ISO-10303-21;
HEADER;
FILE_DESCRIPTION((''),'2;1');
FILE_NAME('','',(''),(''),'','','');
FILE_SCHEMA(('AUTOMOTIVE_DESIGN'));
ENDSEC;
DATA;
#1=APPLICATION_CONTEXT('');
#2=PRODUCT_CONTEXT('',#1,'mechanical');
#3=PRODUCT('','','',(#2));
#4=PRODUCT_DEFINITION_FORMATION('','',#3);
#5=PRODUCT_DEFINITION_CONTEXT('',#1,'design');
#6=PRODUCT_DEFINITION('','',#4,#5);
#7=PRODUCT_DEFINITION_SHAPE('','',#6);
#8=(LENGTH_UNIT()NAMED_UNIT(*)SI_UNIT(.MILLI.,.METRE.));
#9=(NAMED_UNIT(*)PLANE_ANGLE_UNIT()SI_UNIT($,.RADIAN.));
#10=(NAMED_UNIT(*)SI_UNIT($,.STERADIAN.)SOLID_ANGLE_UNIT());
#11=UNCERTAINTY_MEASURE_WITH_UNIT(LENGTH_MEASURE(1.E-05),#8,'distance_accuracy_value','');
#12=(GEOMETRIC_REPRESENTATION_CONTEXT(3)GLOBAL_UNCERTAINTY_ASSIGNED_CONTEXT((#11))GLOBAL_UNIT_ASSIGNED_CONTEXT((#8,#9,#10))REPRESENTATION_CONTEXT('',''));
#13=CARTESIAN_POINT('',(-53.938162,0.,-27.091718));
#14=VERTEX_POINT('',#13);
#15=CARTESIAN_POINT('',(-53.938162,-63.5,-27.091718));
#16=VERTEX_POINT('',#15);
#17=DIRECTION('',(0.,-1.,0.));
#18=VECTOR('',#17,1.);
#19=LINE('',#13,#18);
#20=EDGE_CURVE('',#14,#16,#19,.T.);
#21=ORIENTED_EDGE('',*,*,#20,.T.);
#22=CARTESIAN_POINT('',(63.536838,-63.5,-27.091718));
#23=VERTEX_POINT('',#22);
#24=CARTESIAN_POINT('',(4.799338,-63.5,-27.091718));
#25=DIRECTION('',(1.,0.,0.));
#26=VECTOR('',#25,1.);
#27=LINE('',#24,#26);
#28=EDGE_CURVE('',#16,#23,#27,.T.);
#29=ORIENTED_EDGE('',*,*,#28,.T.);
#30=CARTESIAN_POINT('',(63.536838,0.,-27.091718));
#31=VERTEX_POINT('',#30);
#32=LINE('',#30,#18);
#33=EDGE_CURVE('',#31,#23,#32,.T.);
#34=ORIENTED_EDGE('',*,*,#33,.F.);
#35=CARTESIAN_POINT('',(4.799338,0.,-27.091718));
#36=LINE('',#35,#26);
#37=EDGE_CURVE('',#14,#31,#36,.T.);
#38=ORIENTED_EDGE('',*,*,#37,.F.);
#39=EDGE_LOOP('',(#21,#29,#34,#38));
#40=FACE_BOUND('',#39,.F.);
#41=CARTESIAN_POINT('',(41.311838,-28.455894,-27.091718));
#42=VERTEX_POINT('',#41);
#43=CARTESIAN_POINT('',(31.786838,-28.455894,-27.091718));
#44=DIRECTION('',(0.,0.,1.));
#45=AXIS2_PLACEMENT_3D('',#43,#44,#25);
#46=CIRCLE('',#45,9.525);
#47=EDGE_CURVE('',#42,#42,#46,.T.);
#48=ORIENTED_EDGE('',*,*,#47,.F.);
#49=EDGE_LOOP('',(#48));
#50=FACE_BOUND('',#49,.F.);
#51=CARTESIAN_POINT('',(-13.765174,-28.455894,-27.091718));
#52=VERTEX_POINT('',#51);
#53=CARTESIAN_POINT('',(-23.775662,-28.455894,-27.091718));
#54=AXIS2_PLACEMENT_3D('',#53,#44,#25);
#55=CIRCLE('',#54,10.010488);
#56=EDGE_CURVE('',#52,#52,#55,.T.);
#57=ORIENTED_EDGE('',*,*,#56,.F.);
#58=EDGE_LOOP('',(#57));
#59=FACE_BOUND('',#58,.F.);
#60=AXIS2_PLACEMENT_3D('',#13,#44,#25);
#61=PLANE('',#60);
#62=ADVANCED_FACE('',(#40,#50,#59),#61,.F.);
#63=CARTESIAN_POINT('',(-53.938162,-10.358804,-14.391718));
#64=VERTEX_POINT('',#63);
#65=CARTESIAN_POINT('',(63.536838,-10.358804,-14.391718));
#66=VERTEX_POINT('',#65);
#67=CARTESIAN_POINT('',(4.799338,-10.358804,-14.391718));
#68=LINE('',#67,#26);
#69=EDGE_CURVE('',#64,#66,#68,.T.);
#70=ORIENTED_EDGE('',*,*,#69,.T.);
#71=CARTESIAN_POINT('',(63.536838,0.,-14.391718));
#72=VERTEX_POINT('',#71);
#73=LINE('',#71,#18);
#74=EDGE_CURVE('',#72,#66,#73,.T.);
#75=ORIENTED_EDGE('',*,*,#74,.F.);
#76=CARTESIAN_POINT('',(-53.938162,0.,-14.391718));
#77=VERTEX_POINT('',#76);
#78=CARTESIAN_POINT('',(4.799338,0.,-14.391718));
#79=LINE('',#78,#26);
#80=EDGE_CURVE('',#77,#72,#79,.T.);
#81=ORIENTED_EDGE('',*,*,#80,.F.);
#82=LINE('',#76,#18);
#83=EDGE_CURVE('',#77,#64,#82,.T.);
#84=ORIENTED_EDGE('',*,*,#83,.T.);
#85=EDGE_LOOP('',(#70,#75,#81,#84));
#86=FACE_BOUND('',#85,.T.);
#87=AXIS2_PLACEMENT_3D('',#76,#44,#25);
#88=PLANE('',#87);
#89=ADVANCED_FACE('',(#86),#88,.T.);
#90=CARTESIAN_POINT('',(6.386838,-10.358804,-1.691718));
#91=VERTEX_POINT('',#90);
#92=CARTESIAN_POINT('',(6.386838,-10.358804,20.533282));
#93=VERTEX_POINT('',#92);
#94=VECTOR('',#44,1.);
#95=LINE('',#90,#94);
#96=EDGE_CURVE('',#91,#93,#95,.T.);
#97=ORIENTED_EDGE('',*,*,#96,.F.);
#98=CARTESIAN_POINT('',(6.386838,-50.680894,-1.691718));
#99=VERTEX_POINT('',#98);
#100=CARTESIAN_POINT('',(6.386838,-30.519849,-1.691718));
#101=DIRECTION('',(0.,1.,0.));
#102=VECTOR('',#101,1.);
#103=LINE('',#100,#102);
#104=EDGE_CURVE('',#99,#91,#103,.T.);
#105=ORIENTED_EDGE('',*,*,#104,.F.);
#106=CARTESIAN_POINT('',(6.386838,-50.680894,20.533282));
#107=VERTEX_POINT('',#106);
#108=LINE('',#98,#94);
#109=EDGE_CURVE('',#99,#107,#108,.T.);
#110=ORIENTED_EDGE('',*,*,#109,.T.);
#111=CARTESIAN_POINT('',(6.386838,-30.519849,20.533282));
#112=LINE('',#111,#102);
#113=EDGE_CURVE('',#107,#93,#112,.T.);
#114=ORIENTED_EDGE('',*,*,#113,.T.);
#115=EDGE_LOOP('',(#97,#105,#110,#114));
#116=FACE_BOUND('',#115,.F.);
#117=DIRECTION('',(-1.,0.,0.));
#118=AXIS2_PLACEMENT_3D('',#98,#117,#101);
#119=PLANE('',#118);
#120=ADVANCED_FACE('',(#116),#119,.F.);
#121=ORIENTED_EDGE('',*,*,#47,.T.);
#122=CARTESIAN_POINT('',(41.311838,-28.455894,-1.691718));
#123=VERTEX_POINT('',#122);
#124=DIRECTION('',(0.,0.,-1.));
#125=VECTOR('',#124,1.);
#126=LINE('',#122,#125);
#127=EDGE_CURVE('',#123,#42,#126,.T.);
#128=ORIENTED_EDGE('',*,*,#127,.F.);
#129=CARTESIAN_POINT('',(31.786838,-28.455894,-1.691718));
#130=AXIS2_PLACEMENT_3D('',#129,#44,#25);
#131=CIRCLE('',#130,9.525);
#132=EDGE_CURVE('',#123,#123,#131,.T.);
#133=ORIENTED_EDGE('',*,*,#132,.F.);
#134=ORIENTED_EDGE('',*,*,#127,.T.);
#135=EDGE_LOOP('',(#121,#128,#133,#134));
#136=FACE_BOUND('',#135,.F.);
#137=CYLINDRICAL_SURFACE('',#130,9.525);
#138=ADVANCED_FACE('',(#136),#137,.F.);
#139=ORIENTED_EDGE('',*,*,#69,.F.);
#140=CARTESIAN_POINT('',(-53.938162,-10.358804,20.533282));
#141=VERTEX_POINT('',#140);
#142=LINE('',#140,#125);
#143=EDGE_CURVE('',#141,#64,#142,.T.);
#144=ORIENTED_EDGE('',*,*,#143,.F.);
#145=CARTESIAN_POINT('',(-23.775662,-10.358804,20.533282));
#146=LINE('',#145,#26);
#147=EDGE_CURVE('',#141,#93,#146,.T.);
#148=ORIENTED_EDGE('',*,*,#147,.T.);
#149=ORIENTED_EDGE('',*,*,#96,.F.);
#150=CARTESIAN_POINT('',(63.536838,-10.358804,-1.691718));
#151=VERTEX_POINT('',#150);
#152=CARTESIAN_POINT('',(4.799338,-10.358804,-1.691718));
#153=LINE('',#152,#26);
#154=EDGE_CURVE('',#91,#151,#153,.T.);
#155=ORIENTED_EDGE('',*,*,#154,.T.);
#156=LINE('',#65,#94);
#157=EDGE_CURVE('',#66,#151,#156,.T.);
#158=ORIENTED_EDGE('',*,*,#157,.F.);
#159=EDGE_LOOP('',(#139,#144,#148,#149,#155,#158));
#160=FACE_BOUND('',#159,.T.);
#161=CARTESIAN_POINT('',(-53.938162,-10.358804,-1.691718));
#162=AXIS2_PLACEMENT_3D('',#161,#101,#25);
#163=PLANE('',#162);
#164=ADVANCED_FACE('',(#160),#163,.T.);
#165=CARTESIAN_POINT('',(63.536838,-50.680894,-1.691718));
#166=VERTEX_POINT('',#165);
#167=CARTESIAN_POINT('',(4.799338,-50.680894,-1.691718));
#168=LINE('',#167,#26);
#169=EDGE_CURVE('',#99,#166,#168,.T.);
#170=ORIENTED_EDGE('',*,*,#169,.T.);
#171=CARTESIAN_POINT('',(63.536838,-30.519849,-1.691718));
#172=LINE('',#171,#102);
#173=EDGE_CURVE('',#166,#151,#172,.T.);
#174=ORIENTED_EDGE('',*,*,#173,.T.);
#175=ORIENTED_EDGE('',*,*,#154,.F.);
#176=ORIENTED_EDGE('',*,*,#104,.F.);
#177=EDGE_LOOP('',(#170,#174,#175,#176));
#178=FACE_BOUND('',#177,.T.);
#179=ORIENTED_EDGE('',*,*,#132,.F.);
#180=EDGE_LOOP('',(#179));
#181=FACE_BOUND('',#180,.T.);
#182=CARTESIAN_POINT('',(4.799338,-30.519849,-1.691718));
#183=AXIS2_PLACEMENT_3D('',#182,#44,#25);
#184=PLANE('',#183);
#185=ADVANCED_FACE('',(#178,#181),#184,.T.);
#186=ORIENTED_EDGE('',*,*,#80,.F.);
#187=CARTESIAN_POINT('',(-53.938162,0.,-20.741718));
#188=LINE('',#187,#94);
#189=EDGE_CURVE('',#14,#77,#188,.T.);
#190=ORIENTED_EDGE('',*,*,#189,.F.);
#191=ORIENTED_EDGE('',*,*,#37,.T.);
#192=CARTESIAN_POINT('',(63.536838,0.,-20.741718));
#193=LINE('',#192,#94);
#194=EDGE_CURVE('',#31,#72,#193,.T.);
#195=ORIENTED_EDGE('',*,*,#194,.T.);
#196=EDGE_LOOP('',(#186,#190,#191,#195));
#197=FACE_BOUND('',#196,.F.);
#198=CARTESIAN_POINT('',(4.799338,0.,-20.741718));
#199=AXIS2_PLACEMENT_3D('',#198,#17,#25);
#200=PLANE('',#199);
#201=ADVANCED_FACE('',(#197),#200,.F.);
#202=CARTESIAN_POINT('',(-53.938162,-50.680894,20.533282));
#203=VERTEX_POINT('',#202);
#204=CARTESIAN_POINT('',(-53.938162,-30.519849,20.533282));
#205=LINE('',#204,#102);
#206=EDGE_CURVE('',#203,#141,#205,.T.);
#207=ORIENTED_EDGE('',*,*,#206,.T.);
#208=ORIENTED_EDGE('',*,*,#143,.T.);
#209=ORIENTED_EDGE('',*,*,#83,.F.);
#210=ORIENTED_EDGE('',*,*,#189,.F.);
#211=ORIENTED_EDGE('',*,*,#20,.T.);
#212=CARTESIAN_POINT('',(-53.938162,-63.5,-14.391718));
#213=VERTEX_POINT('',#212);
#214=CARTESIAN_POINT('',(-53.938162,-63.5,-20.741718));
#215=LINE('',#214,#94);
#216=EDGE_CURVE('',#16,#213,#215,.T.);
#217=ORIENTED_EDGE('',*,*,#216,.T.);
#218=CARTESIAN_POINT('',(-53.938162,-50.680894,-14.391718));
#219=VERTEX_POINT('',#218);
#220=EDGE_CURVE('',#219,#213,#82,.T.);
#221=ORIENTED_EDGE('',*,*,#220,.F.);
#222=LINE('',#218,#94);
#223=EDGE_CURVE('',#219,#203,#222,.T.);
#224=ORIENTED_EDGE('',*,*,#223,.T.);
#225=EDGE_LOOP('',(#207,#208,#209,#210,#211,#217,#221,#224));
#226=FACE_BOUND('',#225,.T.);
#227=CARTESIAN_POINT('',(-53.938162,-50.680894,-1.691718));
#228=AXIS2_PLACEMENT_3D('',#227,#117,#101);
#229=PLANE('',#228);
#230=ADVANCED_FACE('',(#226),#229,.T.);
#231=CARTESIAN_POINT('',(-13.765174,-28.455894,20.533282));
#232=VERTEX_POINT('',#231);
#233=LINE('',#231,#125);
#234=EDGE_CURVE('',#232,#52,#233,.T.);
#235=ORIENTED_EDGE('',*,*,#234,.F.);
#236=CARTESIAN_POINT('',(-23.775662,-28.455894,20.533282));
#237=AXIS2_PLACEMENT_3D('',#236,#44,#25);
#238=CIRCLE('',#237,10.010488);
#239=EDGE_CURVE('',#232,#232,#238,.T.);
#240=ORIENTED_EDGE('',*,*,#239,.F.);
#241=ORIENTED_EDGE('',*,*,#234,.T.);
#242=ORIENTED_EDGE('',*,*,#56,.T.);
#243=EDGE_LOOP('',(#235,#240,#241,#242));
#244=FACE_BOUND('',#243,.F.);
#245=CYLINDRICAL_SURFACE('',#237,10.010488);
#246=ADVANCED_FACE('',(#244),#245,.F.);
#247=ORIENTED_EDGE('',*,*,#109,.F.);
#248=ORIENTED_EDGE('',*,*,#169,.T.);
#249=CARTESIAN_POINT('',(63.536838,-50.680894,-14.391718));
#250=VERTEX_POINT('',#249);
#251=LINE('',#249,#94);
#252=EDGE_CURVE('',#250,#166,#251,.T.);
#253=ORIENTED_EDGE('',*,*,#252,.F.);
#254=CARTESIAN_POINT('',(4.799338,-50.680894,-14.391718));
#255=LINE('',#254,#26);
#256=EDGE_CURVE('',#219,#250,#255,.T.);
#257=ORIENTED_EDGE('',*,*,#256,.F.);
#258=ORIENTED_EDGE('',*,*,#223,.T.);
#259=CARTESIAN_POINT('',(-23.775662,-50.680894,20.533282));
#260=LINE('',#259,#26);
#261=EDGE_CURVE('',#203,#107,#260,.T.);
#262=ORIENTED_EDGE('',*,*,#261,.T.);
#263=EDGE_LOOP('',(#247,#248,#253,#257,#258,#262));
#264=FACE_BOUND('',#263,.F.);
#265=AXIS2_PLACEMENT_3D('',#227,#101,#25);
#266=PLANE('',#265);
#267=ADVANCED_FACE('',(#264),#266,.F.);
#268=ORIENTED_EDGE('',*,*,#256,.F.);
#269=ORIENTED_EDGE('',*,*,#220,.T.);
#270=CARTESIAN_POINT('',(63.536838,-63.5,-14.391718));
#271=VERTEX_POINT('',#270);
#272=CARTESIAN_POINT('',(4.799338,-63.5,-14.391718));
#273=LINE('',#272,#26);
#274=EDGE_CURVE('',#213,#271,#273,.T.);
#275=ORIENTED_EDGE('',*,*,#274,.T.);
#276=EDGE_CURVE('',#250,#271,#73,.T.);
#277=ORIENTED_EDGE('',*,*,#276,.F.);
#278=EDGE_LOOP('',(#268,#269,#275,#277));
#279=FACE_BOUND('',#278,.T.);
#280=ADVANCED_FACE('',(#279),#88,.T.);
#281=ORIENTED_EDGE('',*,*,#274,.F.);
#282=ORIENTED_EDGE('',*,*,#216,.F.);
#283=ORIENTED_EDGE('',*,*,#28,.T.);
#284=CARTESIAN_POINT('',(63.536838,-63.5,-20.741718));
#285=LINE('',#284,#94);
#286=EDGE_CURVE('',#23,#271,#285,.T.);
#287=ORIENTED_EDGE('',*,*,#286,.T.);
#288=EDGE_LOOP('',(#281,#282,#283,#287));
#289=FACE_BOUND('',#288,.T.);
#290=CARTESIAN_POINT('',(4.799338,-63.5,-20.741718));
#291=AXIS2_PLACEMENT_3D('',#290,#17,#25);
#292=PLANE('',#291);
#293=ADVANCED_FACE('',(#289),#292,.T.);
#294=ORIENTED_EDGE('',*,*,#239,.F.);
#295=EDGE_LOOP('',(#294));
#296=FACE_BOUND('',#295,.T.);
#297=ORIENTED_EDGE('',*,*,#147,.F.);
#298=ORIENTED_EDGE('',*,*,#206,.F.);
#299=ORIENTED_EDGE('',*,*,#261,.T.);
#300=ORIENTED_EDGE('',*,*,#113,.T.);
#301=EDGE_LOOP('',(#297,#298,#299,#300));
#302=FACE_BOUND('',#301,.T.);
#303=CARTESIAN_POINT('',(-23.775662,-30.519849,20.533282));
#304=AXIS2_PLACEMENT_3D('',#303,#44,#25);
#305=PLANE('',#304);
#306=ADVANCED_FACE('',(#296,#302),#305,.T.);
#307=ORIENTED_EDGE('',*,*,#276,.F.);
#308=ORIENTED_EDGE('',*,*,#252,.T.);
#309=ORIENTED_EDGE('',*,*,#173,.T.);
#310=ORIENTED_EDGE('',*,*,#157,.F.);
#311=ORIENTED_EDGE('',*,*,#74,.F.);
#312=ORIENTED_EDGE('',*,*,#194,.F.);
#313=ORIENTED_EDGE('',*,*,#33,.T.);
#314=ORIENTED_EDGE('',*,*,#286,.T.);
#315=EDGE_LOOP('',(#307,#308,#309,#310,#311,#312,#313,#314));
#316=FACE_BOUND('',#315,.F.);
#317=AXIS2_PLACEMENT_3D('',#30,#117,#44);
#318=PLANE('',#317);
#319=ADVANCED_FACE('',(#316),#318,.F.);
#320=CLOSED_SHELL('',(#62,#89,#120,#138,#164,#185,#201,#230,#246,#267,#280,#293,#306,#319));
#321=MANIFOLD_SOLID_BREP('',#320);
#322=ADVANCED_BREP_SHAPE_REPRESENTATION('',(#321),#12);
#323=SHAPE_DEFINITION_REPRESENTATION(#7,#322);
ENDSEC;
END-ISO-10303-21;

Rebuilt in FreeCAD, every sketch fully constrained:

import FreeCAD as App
import Part
import Sketcher
from FreeCAD import Vector
Q = App.Units.Quantity


def add_polygon(sketch, points):
    """Adds a closed chain of lines whose ends are joined by coincident constraints."""
    first, n = sketch.GeometryCount, len(points)
    for a, b in zip(points, points[1:] + points[:1]):
        sketch.addGeometry(Part.LineSegment(App.Vector(*a, 0), App.Vector(*b, 0)), False)
    for i in range(n):
        sketch.addConstraint(Sketcher.Constraint("Coincident", first + i, 2, first + (i + 1) % n, 1))

doc = App.newDocument("Part")
body = doc.addObject("PartDesign::Body", "Body")

# Sketch on XZ plane
sketch1 = doc.addObject("Sketcher::SketchObject", "Sketch")
body.addObject(sketch1)
sketch1.AttachmentSupport = (doc.XZ_Plane, [""])
sketch1.MapMode = "FlatFace"
add_polygon(sketch1, [(-54, -14), (-54, -27), (64, -27), (64, -14)])  # lines 0-3
sketch1.addConstraint(Sketcher.Constraint("Vertical", 0))
sketch1.addConstraint(Sketcher.Constraint("Horizontal", 1))
sketch1.addConstraint(Sketcher.Constraint("Vertical", 2))
sketch1.addConstraint(Sketcher.Constraint("Horizontal", 3))
sketch1.addConstraint(Sketcher.Constraint("DistanceY", 0, 2, 0, 1, Q("0.5 in")))
sketch1.addConstraint(Sketcher.Constraint("DistanceX", 1, 1, 1, 2, Q("4.625 in")))
sketch1.addConstraint(Sketcher.Constraint("DistanceX", 0, 2, -1, 1, 53.938162))
sketch1.addConstraint(Sketcher.Constraint("DistanceY", 0, 2, -1, 1, 27.091718))
pad1 = doc.addObject("PartDesign::Pad", "Pad")
body.addObject(pad1)
pad1.Profile = sketch1
pad1.Length = Q("2.5 in")

# Sketch on XY plane
sketch2 = doc.addObject("Sketcher::SketchObject", "Sketch001")
body.addObject(sketch2)
sketch2.AttachmentSupport = (doc.XY_Plane, [""])
sketch2.MapMode = "FlatFace"
sketch2.AttachmentOffset = App.Placement(Vector(0, 0, -14.391718), App.Rotation())
add_polygon(sketch2, [(-54, -10), (-54, -51), (64, -51), (64, -10)])  # lines 0-3
sketch2.addConstraint(Sketcher.Constraint("Vertical", 0))
sketch2.addConstraint(Sketcher.Constraint("Horizontal", 1))
sketch2.addConstraint(Sketcher.Constraint("Vertical", 2))
sketch2.addConstraint(Sketcher.Constraint("Horizontal", 3))
sketch2.addConstraint(Sketcher.Constraint("DistanceX", 1, 1, 1, 2, Q("4.625 in")))
sketch2.addConstraint(Sketcher.Constraint("DistanceY", 0, 2, 0, 1, 40.322089))
sketch2.addConstraint(Sketcher.Constraint("DistanceX", 0, 2, -1, 1, 53.938162))
sketch2.addConstraint(Sketcher.Constraint("DistanceY", 0, 2, -1, 1, 50.680894))
pad2 = doc.addObject("PartDesign::Pad", "Pad001")
body.addObject(pad2)
pad2.Profile = sketch2
pad2.Length = Q("0.5 in")

# Sketch on XY plane
sketch3 = doc.addObject("Sketcher::SketchObject", "Sketch002")
body.addObject(sketch3)
sketch3.AttachmentSupport = (doc.XY_Plane, [""])
sketch3.MapMode = "FlatFace"
sketch3.AttachmentOffset = App.Placement(Vector(0, 0, -1.691718), App.Rotation())
add_polygon(sketch3, [(-54, -10), (-54, -51), (6, -51), (6, -10)])  # lines 0-3
sketch3.addConstraint(Sketcher.Constraint("Vertical", 0))
sketch3.addConstraint(Sketcher.Constraint("Horizontal", 1))
sketch3.addConstraint(Sketcher.Constraint("Vertical", 2))
sketch3.addConstraint(Sketcher.Constraint("Horizontal", 3))
sketch3.addConstraint(Sketcher.Constraint("DistanceX", 1, 1, 1, 2, Q("2.375 in")))
sketch3.addConstraint(Sketcher.Constraint("DistanceY", 0, 2, 0, 1, 40.322089))
sketch3.addConstraint(Sketcher.Constraint("DistanceX", 0, 2, -1, 1, 53.938162))
sketch3.addConstraint(Sketcher.Constraint("DistanceY", 0, 2, -1, 1, 50.680894))
pad3 = doc.addObject("PartDesign::Pad", "Pad002")
body.addObject(pad3)
pad3.Profile = sketch3
pad3.Length = Q("0.875 in")

# Sketch on XY plane
sketch4 = doc.addObject("Sketcher::SketchObject", "Sketch003")
body.addObject(sketch4)
sketch4.AttachmentSupport = (doc.XY_Plane, [""])
sketch4.MapMode = "FlatFace"
sketch4.AttachmentOffset = App.Placement(Vector(0, 0, -1.691718), App.Rotation())
sketch4.addGeometry(Part.Circle(Vector(32, -28, 0), Vector(0, 0, 1), 10), False)
sketch4.addConstraint(Sketcher.Constraint("Diameter", 0, Q("0.75 in")))
sketch4.addConstraint(Sketcher.Constraint("DistanceX", -1, 1, 0, 3, 31.786838))
sketch4.addConstraint(Sketcher.Constraint("DistanceY", 0, 3, -1, 1, 28.455894))
pocket1 = doc.addObject("PartDesign::Pocket", "Pocket")
body.addObject(pocket1)
pocket1.Profile = sketch4
pocket1.Length = Q("1 in")

# Sketch on XY plane
sketch5 = doc.addObject("Sketcher::SketchObject", "Sketch004")
body.addObject(sketch5)
sketch5.AttachmentSupport = (doc.XY_Plane, [""])
sketch5.MapMode = "FlatFace"
sketch5.AttachmentOffset = App.Placement(Vector(0, 0, 20.533282), App.Rotation())
sketch5.addGeometry(Part.Circle(Vector(-24, -28, 0), Vector(0, 0, 1), 10), False)
sketch5.addConstraint(Sketcher.Constraint("Diameter", 0, 20.020976))
sketch5.addConstraint(Sketcher.Constraint("DistanceX", 0, 3, -1, 1, 23.775662))
sketch5.addConstraint(Sketcher.Constraint("DistanceY", 0, 3, -1, 1, 28.455894))
pocket2 = doc.addObject("PartDesign::Pocket", "Pocket001")
body.addObject(pocket2)
pocket2.Profile = sketch5
pocket2.Length = Q("1.885 in")

doc.recompute()
